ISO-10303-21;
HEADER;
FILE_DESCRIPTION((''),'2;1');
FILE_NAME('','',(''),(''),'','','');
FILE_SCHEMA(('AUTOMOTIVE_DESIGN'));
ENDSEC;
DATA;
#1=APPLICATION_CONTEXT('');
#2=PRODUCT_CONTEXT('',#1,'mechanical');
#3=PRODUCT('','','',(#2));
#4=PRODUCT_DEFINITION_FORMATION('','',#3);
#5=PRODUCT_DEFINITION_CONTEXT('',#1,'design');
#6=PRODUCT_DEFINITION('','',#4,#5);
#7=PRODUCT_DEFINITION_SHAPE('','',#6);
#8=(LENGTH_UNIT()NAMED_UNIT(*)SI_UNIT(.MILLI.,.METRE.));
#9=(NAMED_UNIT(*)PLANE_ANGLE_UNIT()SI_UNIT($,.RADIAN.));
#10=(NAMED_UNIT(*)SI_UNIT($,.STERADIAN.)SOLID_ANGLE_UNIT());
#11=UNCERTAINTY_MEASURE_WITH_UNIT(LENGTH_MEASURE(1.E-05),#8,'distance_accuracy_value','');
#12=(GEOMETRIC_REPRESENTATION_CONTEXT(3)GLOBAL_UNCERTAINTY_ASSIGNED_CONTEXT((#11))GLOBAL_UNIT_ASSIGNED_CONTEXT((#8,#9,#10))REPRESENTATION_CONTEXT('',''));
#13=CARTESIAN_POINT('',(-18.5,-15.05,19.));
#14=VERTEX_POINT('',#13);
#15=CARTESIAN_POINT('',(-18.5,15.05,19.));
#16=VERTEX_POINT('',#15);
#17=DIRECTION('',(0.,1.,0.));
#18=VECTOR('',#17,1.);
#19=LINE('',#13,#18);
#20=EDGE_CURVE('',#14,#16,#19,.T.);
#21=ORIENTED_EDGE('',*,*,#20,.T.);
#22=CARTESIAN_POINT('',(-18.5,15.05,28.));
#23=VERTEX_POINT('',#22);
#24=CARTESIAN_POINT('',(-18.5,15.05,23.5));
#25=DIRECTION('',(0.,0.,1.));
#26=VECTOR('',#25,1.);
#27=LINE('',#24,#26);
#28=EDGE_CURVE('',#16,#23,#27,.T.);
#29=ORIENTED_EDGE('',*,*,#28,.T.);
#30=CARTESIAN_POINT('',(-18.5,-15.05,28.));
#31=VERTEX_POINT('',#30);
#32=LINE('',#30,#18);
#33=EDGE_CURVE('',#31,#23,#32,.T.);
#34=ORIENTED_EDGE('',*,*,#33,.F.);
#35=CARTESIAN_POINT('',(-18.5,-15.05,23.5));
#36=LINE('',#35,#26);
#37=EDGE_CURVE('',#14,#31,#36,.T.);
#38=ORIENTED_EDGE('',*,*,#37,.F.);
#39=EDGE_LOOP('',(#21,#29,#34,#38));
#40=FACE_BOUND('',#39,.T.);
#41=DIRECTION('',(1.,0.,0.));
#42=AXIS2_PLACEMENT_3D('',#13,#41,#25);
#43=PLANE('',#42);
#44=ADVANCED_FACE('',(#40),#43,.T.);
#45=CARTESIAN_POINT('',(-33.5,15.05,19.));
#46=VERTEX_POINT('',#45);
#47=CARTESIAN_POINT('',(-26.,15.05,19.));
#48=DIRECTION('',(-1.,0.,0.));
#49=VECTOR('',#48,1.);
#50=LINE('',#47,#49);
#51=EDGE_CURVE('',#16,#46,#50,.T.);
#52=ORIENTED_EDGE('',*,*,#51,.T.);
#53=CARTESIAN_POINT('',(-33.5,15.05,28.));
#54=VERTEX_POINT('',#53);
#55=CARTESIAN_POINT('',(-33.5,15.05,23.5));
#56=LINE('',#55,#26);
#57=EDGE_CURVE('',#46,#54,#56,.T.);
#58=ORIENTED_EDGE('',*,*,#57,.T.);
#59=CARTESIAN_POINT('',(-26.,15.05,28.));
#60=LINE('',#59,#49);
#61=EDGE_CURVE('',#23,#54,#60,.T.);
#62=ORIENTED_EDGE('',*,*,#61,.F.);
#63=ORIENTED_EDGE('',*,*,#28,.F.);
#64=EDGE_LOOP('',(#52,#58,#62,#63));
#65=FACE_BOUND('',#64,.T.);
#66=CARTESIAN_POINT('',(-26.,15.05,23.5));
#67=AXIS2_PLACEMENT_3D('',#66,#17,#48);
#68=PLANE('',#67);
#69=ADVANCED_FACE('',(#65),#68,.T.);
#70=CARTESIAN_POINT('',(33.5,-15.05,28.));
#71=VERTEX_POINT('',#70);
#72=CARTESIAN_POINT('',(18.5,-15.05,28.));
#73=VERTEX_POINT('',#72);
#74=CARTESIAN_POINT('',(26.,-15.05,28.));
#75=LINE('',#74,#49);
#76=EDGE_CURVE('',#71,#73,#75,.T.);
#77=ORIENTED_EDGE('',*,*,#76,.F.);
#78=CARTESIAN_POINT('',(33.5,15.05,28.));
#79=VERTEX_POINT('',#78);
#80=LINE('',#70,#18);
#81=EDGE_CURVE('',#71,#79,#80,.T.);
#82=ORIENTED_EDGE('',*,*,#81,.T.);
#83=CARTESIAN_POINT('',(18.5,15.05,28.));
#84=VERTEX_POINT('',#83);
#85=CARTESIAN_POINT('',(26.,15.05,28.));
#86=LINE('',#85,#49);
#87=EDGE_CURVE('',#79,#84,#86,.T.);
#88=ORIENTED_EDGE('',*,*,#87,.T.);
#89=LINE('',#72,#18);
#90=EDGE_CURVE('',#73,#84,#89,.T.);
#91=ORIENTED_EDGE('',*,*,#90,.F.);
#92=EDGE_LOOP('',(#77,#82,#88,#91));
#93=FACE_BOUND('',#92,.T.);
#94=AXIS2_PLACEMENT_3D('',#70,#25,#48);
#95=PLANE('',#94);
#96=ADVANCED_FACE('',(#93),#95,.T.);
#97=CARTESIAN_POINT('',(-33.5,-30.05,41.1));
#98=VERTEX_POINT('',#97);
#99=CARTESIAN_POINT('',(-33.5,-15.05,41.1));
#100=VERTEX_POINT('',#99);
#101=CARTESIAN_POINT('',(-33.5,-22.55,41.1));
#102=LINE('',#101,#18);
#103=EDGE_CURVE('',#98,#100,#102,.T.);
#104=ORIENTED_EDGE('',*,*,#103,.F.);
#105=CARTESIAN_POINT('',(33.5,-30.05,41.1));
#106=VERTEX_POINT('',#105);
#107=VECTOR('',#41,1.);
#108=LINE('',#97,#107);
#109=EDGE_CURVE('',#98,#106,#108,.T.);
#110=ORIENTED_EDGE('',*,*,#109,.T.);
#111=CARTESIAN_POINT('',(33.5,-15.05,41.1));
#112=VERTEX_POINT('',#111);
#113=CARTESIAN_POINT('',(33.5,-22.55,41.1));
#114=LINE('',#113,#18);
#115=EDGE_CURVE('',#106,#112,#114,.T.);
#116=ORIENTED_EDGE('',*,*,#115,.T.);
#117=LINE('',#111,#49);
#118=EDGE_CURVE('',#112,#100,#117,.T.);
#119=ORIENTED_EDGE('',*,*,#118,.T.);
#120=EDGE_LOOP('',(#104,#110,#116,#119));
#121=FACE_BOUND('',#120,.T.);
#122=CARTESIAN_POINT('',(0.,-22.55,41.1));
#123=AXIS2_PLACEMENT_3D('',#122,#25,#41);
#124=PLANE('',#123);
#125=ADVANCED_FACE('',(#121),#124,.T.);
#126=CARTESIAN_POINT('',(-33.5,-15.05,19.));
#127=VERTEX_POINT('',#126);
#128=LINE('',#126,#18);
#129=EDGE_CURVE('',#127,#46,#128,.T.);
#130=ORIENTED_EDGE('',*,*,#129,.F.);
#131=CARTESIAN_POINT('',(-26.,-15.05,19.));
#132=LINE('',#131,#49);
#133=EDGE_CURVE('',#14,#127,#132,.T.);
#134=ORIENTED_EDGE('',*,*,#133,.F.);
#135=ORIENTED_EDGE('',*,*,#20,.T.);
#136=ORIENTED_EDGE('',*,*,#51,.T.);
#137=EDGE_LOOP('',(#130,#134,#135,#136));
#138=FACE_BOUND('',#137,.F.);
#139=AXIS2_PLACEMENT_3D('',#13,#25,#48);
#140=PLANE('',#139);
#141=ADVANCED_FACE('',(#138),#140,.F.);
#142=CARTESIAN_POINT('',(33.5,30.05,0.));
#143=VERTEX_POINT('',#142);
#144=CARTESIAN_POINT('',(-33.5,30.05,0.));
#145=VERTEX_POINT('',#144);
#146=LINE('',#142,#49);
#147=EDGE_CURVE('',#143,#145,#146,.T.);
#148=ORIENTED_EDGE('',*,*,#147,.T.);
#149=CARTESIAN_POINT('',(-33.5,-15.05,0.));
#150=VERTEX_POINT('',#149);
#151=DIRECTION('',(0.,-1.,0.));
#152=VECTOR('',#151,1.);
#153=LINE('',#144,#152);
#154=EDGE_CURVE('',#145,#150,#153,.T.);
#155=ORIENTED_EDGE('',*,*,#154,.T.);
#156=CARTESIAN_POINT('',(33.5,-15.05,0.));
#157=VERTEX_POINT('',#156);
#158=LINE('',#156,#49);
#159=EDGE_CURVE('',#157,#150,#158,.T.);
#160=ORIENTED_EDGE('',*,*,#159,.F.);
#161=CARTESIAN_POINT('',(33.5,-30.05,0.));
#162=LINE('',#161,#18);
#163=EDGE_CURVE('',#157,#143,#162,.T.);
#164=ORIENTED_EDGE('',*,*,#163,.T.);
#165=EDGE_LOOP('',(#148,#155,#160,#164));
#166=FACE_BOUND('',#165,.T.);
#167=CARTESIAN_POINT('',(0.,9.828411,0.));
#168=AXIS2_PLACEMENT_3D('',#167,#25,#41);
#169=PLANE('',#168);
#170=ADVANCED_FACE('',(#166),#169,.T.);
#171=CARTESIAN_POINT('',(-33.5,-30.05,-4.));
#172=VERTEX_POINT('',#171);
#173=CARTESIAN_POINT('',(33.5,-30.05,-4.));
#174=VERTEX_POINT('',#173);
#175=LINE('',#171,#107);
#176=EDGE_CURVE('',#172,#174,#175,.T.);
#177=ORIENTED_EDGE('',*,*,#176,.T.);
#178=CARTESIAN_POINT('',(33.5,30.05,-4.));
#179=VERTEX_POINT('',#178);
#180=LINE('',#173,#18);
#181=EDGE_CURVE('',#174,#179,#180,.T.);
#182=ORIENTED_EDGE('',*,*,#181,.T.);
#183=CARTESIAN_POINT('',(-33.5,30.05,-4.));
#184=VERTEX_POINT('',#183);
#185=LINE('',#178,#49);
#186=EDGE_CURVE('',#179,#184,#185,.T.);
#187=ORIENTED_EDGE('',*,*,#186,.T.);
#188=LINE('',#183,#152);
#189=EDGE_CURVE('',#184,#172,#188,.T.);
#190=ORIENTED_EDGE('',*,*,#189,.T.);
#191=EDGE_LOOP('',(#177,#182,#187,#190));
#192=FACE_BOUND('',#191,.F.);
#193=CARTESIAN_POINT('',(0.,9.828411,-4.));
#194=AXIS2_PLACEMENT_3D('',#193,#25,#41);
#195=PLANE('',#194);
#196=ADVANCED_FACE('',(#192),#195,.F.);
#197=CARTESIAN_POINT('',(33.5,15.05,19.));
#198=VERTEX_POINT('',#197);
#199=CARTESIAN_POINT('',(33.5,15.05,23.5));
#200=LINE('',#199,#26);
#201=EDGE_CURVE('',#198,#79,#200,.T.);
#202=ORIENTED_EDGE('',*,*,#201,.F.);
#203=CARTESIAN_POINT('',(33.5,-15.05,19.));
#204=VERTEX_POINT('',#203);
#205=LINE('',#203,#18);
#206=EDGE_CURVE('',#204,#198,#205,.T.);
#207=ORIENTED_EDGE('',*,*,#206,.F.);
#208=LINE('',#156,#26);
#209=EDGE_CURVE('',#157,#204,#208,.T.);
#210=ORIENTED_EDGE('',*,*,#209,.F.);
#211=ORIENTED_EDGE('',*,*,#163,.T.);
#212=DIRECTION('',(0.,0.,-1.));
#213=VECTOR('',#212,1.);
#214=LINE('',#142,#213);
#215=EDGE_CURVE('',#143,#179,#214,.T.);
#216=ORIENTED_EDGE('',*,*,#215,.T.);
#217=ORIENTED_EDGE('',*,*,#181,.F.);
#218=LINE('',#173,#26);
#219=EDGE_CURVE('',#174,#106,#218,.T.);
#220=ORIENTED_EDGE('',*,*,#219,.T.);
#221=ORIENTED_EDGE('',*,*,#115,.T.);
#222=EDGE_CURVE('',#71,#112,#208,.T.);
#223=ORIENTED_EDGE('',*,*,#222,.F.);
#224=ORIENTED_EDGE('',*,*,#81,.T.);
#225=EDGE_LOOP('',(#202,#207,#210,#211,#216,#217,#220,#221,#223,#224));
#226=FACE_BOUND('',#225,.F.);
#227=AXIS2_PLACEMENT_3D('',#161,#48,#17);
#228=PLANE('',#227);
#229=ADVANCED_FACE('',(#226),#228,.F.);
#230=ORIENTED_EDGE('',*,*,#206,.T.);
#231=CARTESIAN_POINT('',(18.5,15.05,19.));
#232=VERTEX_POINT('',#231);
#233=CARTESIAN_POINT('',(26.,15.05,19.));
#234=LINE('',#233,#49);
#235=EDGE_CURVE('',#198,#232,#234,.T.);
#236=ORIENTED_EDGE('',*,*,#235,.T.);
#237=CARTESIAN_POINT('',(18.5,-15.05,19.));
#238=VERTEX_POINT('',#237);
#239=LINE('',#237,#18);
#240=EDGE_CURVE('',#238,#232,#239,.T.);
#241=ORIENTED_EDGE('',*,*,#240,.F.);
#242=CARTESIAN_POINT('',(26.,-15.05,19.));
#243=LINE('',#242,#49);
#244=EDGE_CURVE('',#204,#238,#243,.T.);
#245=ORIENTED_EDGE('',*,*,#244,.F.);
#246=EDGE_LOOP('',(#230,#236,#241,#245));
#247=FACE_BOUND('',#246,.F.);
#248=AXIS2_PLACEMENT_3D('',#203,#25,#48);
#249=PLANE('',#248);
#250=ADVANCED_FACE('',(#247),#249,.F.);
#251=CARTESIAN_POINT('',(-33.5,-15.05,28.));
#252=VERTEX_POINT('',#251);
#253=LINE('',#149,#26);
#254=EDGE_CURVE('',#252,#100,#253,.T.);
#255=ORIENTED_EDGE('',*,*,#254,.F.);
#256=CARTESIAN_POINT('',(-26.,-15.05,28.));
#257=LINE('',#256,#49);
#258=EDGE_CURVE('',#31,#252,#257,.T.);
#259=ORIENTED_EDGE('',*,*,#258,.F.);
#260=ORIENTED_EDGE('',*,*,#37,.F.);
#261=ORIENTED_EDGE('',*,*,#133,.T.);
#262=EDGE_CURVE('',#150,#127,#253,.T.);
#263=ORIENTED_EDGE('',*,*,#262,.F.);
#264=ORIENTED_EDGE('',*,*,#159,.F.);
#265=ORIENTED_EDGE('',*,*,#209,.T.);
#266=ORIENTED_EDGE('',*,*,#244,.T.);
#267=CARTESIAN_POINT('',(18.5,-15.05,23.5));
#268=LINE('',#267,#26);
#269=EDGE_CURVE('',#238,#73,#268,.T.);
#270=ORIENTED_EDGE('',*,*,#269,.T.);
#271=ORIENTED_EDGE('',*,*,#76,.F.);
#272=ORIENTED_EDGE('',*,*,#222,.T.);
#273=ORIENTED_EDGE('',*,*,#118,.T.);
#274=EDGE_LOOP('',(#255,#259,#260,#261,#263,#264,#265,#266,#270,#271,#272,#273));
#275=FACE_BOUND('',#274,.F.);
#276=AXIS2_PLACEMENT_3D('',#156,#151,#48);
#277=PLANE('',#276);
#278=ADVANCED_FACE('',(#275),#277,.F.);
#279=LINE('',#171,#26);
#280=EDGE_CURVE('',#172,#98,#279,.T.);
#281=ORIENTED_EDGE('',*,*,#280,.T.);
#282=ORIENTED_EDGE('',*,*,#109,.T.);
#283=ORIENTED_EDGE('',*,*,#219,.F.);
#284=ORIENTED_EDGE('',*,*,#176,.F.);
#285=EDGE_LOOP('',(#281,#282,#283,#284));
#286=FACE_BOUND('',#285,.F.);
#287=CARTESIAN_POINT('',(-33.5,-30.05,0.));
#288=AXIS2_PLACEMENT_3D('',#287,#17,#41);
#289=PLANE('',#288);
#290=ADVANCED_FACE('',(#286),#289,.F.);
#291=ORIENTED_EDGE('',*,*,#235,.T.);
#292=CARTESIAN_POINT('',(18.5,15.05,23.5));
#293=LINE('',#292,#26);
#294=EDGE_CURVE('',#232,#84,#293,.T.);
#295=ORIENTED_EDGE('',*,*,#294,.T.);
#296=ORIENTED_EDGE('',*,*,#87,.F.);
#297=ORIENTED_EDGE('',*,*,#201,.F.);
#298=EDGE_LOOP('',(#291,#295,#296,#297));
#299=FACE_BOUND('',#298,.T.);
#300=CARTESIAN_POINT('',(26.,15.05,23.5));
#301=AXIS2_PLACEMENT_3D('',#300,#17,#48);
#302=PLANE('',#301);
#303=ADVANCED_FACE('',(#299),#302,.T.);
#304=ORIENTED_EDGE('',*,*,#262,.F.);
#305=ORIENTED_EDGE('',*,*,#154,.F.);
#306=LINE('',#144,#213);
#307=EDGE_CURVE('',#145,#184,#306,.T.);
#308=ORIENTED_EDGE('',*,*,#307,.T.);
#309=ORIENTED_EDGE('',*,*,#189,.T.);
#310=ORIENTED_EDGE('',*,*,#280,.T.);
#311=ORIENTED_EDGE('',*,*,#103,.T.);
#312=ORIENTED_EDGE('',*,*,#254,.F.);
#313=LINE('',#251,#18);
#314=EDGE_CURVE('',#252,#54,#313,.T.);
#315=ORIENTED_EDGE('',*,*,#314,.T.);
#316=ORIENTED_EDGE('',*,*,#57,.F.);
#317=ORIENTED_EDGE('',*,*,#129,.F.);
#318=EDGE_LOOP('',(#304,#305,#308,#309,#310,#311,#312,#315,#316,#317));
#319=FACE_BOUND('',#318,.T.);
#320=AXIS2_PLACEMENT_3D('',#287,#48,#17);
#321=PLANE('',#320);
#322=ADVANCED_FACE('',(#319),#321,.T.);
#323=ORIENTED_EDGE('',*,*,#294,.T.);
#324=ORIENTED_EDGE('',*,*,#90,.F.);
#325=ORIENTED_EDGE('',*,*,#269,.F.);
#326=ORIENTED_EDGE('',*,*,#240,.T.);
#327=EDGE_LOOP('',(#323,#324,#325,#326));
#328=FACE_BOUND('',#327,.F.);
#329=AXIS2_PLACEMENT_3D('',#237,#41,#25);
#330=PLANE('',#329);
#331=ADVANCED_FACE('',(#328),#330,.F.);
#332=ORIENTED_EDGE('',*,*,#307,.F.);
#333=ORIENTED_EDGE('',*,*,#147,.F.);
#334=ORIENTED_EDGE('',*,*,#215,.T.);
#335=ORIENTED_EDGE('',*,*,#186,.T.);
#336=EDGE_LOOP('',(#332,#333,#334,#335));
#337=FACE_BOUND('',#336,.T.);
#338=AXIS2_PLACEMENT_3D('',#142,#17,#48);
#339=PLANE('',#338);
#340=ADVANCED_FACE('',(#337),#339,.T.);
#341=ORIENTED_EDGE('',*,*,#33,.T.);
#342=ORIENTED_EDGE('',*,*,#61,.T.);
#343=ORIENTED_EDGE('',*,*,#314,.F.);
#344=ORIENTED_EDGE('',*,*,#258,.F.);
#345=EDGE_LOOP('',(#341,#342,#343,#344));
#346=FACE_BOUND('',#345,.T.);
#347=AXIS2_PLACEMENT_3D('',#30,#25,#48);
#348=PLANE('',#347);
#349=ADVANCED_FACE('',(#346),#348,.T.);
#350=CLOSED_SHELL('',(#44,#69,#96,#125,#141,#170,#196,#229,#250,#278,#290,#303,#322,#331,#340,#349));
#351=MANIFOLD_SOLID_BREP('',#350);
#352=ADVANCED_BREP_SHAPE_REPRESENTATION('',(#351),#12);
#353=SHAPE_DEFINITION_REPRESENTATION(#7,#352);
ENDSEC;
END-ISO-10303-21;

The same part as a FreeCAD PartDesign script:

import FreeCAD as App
import Part
import Sketcher
from FreeCAD import Vector
Q = App.Units.Quantity

doc = App.newDocument("Part")
body = doc.addObject("PartDesign::Body", "Body")

# Sketch on XY plane
sketch1 = body.newObject("Sketcher::SketchObject", "Sketch")
sketch1.AttachmentSupport = (doc.getObject("XY_Plane"), [""])
sketch1.MapMode = "FlatFace"
sketch1.addGeometry([
    Part.LineSegment(Vector(34, 30, 0), Vector(-34, 30, 0)),
    Part.LineSegment(Vector(-34, 30, 0), Vector(-34, -30, 0)),
    Part.LineSegment(Vector(-34, -30, 0), Vector(34, -30, 0)),
    Part.LineSegment(Vector(34, -30, 0), Vector(34, 30, 0)),
], False)
sketch1.addConstraint([
    Sketcher.Constraint("Coincident", 0, 2, 1, 1),
    Sketcher.Constraint("Coincident", 1, 2, 2, 1),
    Sketcher.Constraint("Coincident", 2, 2, 3, 1),
    Sketcher.Constraint("Coincident", 3, 2, 0, 1),
    Sketcher.Constraint("Horizontal", 0),
    Sketcher.Constraint("Vertical", 1),
    Sketcher.Constraint("Horizontal", 2),
    Sketcher.Constraint("Vertical", 3),
    Sketcher.Constraint("Symmetric", 0, 2, 2, 2, -1, 1),
    Sketcher.Constraint("DistanceX", 0, 2, 0, 1, Q("67 mm")),
    Sketcher.Constraint("DistanceY", 1, 2, 1, 1, Q("60.1 mm")),
])
pad1 = body.newObject("PartDesign::Pad", "Pad")
pad1.Profile = sketch1
pad1.Length = 4
pad1.Reversed = True

# Sketch on XY plane
sketch2 = body.newObject("Sketcher::SketchObject", "Sketch001")
sketch2.AttachmentSupport = (doc.getObject("XY_Plane"), [""])
sketch2.MapMode = "FlatFace"
sketch2.addGeometry([
    Part.LineSegment(Vector(-34, -15, 0), Vector(-34, -30, 0)),
    Part.LineSegment(Vector(-34, -30, 0), Vector(34, -30, 0)),
    Part.LineSegment(Vector(34, -30, 0), Vector(34, -15, 0)),
    Part.LineSegment(Vector(34, -15, 0), Vector(-34, -15, 0)),
], False)
sketch2.addConstraint([
    Sketcher.Constraint("Coincident", 0, 2, 1, 1),
    Sketcher.Constraint("Coincident", 1, 2, 2, 1),
    Sketcher.Constraint("Coincident", 2, 2, 3, 1),
    Sketcher.Constraint("Coincident", 3, 2, 0, 1),
    Sketcher.Constraint("Vertical", 0),
    Sketcher.Constraint("Horizontal", 1),
    Sketcher.Constraint("Vertical", 2),
    Sketcher.Constraint("Horizontal", 3),
    Sketcher.Constraint("DistanceX", 1, 1, 1, 2, Q("67 mm")),
    Sketcher.Constraint("DistanceY", 0, 2, 0, 1, Q("15 mm")),
    Sketcher.Constraint("DistanceX", 0, 2, -1, 1, Q("33.5 mm")),
    Sketcher.Constraint("DistanceY", 0, 2, -1, 1, Q("30.05 mm")),
])
pad2 = body.newObject("PartDesign::Pad", "Pad001")
pad2.Profile = sketch2
pad2.Length = 41.1

# Sketch on XZ plane
sketch3 = body.newObject("Sketcher::SketchObject", "Sketch002")
sketch3.AttachmentSupport = (doc.getObject("XZ_Plane"), [""])
sketch3.MapMode = "FlatFace"
sketch3.AttachmentOffset = App.Placement(Vector(0, 0, 15.05), App.Rotation())
sketch3.addGeometry([
    Part.LineSegment(Vector(-18, 28, 0), Vector(-18, 19, 0)),  # 0
    Part.LineSegment(Vector(-18, 19, 0), Vector(-34, 19, 0)),  # 1
    Part.LineSegment(Vector(-34, 19, 0), Vector(-34, 28, 0)),  # 2
    Part.LineSegment(Vector(-34, 28, 0), Vector(-18, 28, 0)),  # 3
    Part.LineSegment(Vector(34, 28, 0), Vector(34, 19, 0)),  # 4
    Part.LineSegment(Vector(34, 19, 0), Vector(18, 19, 0)),  # 5
    Part.LineSegment(Vector(18, 19, 0), Vector(18, 28, 0)),  # 6
    Part.LineSegment(Vector(18, 28, 0), Vector(34, 28, 0)),  # 7
], False)
sketch3.addConstraint([
    Sketcher.Constraint("Coincident", 0, 2, 1, 1),
    Sketcher.Constraint("Coincident", 1, 2, 2, 1),
    Sketcher.Constraint("Coincident", 2, 2, 3, 1),
    Sketcher.Constraint("Coincident", 3, 2, 0, 1),
    Sketcher.Constraint("Coincident", 4, 2, 5, 1),
    Sketcher.Constraint("Coincident", 5, 2, 6, 1),
    Sketcher.Constraint("Coincident", 6, 2, 7, 1),
    Sketcher.Constraint("Coincident", 7, 2, 4, 1),
    Sketcher.Constraint("Vertical", 0),
    Sketcher.Constraint("Horizontal", 1),
    Sketcher.Constraint("Vertical", 2),
    Sketcher.Constraint("Horizontal", 3),
    Sketcher.Constraint("Vertical", 4),
    Sketcher.Constraint("Horizontal", 5),
    Sketcher.Constraint("Vertical", 6),
    Sketcher.Constraint("Horizontal", 7),
    Sketcher.Constraint("Symmetric", 1, 2, 4, 2, -2),
    Sketcher.Constraint("Symmetric", 3, 2, 6, 2, -2),
    Sketcher.Constraint("DistanceX", 1, 2, 1, 1, Q("15 mm")),
    Sketcher.Constraint("DistanceY", 0, 2, 0, 1, Q("9 mm")),
    Sketcher.Constraint("DistanceY", -1, 1, 0, 2, Q("19 mm")),
    Sketcher.Constraint("DistanceX", 0, 2, 4, 2, Q("52 mm")),
])
pad3 = body.newObject("PartDesign::Pad", "Pad002")
pad3.Profile = sketch3
pad3.Length = 30.1
pad3.Reversed = True

doc.recompute()
